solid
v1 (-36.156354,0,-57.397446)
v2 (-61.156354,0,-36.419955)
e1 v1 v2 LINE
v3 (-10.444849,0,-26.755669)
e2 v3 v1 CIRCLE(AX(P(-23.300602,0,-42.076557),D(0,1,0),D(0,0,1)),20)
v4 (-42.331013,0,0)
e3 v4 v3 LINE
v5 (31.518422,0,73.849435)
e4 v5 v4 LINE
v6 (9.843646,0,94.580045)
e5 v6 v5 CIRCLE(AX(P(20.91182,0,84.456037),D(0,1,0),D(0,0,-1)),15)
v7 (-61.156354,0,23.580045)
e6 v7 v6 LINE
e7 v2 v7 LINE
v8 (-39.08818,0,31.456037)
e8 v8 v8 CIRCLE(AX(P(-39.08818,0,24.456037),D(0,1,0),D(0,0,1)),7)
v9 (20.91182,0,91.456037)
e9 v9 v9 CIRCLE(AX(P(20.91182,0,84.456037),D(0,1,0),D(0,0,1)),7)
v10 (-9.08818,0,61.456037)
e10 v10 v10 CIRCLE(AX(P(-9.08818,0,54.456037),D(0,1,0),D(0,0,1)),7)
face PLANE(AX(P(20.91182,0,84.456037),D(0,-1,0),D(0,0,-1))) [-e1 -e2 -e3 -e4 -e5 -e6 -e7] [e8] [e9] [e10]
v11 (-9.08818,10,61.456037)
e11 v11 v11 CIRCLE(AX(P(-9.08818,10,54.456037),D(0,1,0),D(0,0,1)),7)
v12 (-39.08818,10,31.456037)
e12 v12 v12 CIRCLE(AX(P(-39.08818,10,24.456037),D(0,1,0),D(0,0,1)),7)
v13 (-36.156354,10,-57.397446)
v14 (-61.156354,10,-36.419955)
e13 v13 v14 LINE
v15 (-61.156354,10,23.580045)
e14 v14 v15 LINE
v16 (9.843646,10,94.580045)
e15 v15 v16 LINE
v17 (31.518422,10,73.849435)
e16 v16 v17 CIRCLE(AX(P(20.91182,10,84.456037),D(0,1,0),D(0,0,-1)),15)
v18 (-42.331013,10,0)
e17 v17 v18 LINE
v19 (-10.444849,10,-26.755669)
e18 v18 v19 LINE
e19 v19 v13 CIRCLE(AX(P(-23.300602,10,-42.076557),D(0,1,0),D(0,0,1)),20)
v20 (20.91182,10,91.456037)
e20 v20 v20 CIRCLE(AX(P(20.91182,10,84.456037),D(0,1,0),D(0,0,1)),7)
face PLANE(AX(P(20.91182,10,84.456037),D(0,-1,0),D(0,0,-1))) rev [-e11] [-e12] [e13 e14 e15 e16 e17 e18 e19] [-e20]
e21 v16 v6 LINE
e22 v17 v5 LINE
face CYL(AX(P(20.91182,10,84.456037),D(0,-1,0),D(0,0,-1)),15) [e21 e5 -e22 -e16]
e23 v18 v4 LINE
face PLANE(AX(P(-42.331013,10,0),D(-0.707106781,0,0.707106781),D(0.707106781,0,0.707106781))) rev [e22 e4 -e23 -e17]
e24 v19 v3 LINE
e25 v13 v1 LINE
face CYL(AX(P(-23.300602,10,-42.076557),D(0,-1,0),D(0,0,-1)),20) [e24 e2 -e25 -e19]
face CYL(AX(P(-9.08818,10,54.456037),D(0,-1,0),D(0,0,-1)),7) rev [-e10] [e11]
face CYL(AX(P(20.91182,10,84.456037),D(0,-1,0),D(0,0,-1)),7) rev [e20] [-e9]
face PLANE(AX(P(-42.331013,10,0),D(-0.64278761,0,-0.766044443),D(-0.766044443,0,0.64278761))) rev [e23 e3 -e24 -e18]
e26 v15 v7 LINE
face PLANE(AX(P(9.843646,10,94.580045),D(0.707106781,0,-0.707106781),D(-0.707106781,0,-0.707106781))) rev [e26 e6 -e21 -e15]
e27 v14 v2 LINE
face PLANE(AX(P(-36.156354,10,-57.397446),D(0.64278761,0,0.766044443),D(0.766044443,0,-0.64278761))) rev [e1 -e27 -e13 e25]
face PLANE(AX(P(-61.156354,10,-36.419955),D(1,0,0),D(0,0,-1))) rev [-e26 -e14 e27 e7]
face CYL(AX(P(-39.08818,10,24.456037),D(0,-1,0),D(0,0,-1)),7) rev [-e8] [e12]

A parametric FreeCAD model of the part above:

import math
import FreeCAD as App
import Part
import Sketcher
from FreeCAD import Vector
Q = App.Units.Quantity

doc = App.newDocument("Part")
body = doc.addObject("PartDesign::Body", "Body")

sketch1 = doc.addObject("Sketcher::SketchObject", "Sketch")
body.addObject(sketch1)
sketch1.AttachmentSupport = (doc.XZ_Plane, [""])
sketch1.MapMode = "FlatFace"
sketch1.addGeometry([
    Part.LineSegment(Vector(-42, 0, 0), Vector(-10, -27, 0)),
    Part.ArcOfCircle(Part.Circle(Vector(-23, -42, 0), Vector(0, 0, 1), 20), math.radians(-130), math.radians(50)),
    Part.LineSegment(Vector(-36, -57, 0), Vector(-61, -36, 0)),
    Part.LineSegment(Vector(-61, -36, 0), Vector(-61, 24, 0)),
    Part.LineSegment(Vector(-61, 24, 0), Vector(10, 95, 0)),
    Part.ArcOfCircle(Part.Circle(Vector(21, 84, 0), Vector(0, 0, 1), 15), math.radians(-45), math.radians(138)),
    Part.LineSegment(Vector(32, 74, 0), Vector(-42, 0, 0)),
    Part.Circle(Vector(21, 84, 0), Vector(0, 0, 1), 7),
    Part.Circle(Vector(-39, 24, 0), Vector(0, 0, 1), 7),
    Part.Circle(Vector(-9, 54, 0), Vector(0, 0, 1), 7),
], False)
sketch1.addConstraint([
    Sketcher.Constraint("Tangent", 0, 2, 1, 2),
    Sketcher.Constraint("Tangent", 1, 1, 2, 1),
    Sketcher.Constraint("Coincident", 2, 2, 3, 1),
    Sketcher.Constraint("Coincident", 3, 2, 4, 1),
    Sketcher.Constraint("Coincident", 4, 2, 5, 2),
    Sketcher.Constraint("Tangent", 5, 1, 6, 1),
    Sketcher.Constraint("Coincident", 6, 2, 0, 1),
    Sketcher.Constraint("Vertical", 3),
    Sketcher.Constraint("Coincident", 7, 3, 5, 3),
    Sketcher.Constraint("Equal", 7, 8),
    Sketcher.Constraint("Equal", 8, 9),
    Sketcher.Constraint("PointOnObject", 6, 2, -1),
    Sketcher.Constraint("Parallel", 0, 2),
    Sketcher.Constraint("Parallel", 4, 6),
    Sketcher.Constraint("Diameter", 7, Q("14 mm")),
    Sketcher.Constraint("Radius", 1, Q("20 mm")),
    Sketcher.Constraint("Radius", 5, Q("15 mm")),
    Sketcher.Constraint("DistanceY", 3, 1, 3, 2, Q("60 mm")),
    Sketcher.Constraint("Angle", 0, Q("-40 deg")),
    Sketcher.Constraint("Angle", 4, Q("45 deg")),
    Sketcher.Constraint("DistanceX", 8, 3, 5, 3, Q("60 mm")),
    Sketcher.Constraint("DistanceY", 8, 3, 5, 3, Q("60 mm")),
    Sketcher.Constraint("DistanceX", 9, 3, 5, 3, Q("30 mm")),
    Sketcher.Constraint("DistanceY", 9, 3, 5, 3, Q("30 mm")),
    Sketcher.Constraint("DistanceX", 2, 2, 1, 1, Q("25 mm")),
    Sketcher.Constraint("DistanceX", 3, 2, 4, 2, Q("71 mm")),
    Sketcher.Constraint("DistanceX", 1, 3, -1, 1, Q("23.300602 mm")),
    Sketcher.Constraint("Distance", 0, Q("41.624431 mm")),
])
pad1 = doc.addObject("PartDesign::Pad", "Pad")
body.addObject(pad1)
pad1.Profile = sketch1
pad1.Length = 10
pad1.Reversed = True

doc.recompute()
